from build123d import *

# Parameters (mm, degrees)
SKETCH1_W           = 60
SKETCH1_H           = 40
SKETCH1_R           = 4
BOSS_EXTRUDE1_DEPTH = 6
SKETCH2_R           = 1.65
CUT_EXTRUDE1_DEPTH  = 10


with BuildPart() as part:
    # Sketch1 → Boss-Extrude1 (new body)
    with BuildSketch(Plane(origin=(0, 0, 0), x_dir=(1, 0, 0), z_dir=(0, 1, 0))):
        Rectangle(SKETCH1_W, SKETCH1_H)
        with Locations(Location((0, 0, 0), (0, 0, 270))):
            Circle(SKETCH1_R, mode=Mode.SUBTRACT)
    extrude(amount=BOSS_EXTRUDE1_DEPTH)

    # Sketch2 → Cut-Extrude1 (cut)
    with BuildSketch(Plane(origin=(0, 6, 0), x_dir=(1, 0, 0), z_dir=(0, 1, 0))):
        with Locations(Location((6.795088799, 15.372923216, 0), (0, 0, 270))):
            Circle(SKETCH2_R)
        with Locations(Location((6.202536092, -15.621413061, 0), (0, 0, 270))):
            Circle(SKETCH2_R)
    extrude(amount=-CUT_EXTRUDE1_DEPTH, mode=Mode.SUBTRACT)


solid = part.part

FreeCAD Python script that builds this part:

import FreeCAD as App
import Part
import Sketcher
from FreeCAD import Vector
Q = App.Units.Quantity


def add_polygon(sketch, points):
    """Adds a closed chain of lines whose ends are joined by coincident constraints."""
    first, n = sketch.GeometryCount, len(points)
    for a, b in zip(points, points[1:] + points[:1]):
        sketch.addGeometry(Part.LineSegment(App.Vector(*a, 0), App.Vector(*b, 0)), False)
    for i in range(n):
        sketch.addConstraint(Sketcher.Constraint("Coincident", first + i, 2, first + (i + 1) % n, 1))

doc = App.newDocument("Part")
body = doc.addObject("PartDesign::Body", "Body")

sketch1 = body.newObject("Sketcher::SketchObject", "Sketch")
sketch1.AttachmentSupport = (doc.getObject("XZ_Plane"), [""])
sketch1.MapMode = "FlatFace"
add_polygon(sketch1, [(-30, -20), (-30, 20), (30, 20), (30, -20)])
sketch1.addGeometry(Part.Circle(Vector(0, 0, 0), Vector(0, 0, 1), 4), False)
sketch1.addConstraint(Sketcher.Constraint("Vertical", 0))
sketch1.addConstraint(Sketcher.Constraint("Horizontal", 1))
sketch1.addConstraint(Sketcher.Constraint("Vertical", 2))
sketch1.addConstraint(Sketcher.Constraint("Horizontal", 3))
sketch1.addConstraint(Sketcher.Constraint("Coincident", 4, 3, -1, 1))
sketch1.addConstraint(Sketcher.Constraint("Symmetric", 0, 2, 2, 2, -1, 1))
sketch1.addConstraint(Sketcher.Constraint("Diameter", 4, Q("8 mm")))
sketch1.addConstraint(Sketcher.Constraint("DistanceX", 1, 1, 1, 2, Q("60 mm")))
sketch1.addConstraint(Sketcher.Constraint("DistanceY", 0, 1, 0, 2, Q("40 mm")))
pad1 = body.newObject("PartDesign::Pad", "Pad")
pad1.Profile = sketch1
pad1.Length = 6
pad1.Reversed = True

sketch2 = body.newObject("Sketcher::SketchObject", "Sketch001")
sketch2.AttachmentSupport = (doc.getObject("XZ_Plane"), [""])
sketch2.MapMode = "FlatFace"
sketch2.AttachmentOffset = App.Placement(Vector(0, 0, -6), App.Rotation())
sketch2.addGeometry(Part.Circle(Vector(6.8, -15.4, 0), Vector(0, 0, 1), 1.6), False)
sketch2.addGeometry(Part.Circle(Vector(6.2, 15.6, 0), Vector(0, 0, 1), 1.6), False)
sketch2.addConstraint(Sketcher.Constraint("Equal", 0, 1))
sketch2.addConstraint(Sketcher.Constraint("Diameter", 0, Q("3.3 mm")))
sketch2.addConstraint(Sketcher.Constraint("DistanceX", -1, 1, 0, 3, Q("6.795089 mm")))
sketch2.addConstraint(Sketcher.Constraint("DistanceY", 0, 3, -1, 1, Q("15.372923 mm")))
sketch2.addConstraint(Sketcher.Constraint("DistanceX", -1, 1, 1, 3, Q("6.202536 mm")))
sketch2.addConstraint(Sketcher.Constraint("DistanceY", -1, 1, 1, 3, Q("15.621413 mm")))
pocket1 = body.newObject("PartDesign::Pocket", "Pocket")
pocket1.Profile = sketch2
pocket1.Length = 10
pocket1.Reversed = True

doc.recompute()
